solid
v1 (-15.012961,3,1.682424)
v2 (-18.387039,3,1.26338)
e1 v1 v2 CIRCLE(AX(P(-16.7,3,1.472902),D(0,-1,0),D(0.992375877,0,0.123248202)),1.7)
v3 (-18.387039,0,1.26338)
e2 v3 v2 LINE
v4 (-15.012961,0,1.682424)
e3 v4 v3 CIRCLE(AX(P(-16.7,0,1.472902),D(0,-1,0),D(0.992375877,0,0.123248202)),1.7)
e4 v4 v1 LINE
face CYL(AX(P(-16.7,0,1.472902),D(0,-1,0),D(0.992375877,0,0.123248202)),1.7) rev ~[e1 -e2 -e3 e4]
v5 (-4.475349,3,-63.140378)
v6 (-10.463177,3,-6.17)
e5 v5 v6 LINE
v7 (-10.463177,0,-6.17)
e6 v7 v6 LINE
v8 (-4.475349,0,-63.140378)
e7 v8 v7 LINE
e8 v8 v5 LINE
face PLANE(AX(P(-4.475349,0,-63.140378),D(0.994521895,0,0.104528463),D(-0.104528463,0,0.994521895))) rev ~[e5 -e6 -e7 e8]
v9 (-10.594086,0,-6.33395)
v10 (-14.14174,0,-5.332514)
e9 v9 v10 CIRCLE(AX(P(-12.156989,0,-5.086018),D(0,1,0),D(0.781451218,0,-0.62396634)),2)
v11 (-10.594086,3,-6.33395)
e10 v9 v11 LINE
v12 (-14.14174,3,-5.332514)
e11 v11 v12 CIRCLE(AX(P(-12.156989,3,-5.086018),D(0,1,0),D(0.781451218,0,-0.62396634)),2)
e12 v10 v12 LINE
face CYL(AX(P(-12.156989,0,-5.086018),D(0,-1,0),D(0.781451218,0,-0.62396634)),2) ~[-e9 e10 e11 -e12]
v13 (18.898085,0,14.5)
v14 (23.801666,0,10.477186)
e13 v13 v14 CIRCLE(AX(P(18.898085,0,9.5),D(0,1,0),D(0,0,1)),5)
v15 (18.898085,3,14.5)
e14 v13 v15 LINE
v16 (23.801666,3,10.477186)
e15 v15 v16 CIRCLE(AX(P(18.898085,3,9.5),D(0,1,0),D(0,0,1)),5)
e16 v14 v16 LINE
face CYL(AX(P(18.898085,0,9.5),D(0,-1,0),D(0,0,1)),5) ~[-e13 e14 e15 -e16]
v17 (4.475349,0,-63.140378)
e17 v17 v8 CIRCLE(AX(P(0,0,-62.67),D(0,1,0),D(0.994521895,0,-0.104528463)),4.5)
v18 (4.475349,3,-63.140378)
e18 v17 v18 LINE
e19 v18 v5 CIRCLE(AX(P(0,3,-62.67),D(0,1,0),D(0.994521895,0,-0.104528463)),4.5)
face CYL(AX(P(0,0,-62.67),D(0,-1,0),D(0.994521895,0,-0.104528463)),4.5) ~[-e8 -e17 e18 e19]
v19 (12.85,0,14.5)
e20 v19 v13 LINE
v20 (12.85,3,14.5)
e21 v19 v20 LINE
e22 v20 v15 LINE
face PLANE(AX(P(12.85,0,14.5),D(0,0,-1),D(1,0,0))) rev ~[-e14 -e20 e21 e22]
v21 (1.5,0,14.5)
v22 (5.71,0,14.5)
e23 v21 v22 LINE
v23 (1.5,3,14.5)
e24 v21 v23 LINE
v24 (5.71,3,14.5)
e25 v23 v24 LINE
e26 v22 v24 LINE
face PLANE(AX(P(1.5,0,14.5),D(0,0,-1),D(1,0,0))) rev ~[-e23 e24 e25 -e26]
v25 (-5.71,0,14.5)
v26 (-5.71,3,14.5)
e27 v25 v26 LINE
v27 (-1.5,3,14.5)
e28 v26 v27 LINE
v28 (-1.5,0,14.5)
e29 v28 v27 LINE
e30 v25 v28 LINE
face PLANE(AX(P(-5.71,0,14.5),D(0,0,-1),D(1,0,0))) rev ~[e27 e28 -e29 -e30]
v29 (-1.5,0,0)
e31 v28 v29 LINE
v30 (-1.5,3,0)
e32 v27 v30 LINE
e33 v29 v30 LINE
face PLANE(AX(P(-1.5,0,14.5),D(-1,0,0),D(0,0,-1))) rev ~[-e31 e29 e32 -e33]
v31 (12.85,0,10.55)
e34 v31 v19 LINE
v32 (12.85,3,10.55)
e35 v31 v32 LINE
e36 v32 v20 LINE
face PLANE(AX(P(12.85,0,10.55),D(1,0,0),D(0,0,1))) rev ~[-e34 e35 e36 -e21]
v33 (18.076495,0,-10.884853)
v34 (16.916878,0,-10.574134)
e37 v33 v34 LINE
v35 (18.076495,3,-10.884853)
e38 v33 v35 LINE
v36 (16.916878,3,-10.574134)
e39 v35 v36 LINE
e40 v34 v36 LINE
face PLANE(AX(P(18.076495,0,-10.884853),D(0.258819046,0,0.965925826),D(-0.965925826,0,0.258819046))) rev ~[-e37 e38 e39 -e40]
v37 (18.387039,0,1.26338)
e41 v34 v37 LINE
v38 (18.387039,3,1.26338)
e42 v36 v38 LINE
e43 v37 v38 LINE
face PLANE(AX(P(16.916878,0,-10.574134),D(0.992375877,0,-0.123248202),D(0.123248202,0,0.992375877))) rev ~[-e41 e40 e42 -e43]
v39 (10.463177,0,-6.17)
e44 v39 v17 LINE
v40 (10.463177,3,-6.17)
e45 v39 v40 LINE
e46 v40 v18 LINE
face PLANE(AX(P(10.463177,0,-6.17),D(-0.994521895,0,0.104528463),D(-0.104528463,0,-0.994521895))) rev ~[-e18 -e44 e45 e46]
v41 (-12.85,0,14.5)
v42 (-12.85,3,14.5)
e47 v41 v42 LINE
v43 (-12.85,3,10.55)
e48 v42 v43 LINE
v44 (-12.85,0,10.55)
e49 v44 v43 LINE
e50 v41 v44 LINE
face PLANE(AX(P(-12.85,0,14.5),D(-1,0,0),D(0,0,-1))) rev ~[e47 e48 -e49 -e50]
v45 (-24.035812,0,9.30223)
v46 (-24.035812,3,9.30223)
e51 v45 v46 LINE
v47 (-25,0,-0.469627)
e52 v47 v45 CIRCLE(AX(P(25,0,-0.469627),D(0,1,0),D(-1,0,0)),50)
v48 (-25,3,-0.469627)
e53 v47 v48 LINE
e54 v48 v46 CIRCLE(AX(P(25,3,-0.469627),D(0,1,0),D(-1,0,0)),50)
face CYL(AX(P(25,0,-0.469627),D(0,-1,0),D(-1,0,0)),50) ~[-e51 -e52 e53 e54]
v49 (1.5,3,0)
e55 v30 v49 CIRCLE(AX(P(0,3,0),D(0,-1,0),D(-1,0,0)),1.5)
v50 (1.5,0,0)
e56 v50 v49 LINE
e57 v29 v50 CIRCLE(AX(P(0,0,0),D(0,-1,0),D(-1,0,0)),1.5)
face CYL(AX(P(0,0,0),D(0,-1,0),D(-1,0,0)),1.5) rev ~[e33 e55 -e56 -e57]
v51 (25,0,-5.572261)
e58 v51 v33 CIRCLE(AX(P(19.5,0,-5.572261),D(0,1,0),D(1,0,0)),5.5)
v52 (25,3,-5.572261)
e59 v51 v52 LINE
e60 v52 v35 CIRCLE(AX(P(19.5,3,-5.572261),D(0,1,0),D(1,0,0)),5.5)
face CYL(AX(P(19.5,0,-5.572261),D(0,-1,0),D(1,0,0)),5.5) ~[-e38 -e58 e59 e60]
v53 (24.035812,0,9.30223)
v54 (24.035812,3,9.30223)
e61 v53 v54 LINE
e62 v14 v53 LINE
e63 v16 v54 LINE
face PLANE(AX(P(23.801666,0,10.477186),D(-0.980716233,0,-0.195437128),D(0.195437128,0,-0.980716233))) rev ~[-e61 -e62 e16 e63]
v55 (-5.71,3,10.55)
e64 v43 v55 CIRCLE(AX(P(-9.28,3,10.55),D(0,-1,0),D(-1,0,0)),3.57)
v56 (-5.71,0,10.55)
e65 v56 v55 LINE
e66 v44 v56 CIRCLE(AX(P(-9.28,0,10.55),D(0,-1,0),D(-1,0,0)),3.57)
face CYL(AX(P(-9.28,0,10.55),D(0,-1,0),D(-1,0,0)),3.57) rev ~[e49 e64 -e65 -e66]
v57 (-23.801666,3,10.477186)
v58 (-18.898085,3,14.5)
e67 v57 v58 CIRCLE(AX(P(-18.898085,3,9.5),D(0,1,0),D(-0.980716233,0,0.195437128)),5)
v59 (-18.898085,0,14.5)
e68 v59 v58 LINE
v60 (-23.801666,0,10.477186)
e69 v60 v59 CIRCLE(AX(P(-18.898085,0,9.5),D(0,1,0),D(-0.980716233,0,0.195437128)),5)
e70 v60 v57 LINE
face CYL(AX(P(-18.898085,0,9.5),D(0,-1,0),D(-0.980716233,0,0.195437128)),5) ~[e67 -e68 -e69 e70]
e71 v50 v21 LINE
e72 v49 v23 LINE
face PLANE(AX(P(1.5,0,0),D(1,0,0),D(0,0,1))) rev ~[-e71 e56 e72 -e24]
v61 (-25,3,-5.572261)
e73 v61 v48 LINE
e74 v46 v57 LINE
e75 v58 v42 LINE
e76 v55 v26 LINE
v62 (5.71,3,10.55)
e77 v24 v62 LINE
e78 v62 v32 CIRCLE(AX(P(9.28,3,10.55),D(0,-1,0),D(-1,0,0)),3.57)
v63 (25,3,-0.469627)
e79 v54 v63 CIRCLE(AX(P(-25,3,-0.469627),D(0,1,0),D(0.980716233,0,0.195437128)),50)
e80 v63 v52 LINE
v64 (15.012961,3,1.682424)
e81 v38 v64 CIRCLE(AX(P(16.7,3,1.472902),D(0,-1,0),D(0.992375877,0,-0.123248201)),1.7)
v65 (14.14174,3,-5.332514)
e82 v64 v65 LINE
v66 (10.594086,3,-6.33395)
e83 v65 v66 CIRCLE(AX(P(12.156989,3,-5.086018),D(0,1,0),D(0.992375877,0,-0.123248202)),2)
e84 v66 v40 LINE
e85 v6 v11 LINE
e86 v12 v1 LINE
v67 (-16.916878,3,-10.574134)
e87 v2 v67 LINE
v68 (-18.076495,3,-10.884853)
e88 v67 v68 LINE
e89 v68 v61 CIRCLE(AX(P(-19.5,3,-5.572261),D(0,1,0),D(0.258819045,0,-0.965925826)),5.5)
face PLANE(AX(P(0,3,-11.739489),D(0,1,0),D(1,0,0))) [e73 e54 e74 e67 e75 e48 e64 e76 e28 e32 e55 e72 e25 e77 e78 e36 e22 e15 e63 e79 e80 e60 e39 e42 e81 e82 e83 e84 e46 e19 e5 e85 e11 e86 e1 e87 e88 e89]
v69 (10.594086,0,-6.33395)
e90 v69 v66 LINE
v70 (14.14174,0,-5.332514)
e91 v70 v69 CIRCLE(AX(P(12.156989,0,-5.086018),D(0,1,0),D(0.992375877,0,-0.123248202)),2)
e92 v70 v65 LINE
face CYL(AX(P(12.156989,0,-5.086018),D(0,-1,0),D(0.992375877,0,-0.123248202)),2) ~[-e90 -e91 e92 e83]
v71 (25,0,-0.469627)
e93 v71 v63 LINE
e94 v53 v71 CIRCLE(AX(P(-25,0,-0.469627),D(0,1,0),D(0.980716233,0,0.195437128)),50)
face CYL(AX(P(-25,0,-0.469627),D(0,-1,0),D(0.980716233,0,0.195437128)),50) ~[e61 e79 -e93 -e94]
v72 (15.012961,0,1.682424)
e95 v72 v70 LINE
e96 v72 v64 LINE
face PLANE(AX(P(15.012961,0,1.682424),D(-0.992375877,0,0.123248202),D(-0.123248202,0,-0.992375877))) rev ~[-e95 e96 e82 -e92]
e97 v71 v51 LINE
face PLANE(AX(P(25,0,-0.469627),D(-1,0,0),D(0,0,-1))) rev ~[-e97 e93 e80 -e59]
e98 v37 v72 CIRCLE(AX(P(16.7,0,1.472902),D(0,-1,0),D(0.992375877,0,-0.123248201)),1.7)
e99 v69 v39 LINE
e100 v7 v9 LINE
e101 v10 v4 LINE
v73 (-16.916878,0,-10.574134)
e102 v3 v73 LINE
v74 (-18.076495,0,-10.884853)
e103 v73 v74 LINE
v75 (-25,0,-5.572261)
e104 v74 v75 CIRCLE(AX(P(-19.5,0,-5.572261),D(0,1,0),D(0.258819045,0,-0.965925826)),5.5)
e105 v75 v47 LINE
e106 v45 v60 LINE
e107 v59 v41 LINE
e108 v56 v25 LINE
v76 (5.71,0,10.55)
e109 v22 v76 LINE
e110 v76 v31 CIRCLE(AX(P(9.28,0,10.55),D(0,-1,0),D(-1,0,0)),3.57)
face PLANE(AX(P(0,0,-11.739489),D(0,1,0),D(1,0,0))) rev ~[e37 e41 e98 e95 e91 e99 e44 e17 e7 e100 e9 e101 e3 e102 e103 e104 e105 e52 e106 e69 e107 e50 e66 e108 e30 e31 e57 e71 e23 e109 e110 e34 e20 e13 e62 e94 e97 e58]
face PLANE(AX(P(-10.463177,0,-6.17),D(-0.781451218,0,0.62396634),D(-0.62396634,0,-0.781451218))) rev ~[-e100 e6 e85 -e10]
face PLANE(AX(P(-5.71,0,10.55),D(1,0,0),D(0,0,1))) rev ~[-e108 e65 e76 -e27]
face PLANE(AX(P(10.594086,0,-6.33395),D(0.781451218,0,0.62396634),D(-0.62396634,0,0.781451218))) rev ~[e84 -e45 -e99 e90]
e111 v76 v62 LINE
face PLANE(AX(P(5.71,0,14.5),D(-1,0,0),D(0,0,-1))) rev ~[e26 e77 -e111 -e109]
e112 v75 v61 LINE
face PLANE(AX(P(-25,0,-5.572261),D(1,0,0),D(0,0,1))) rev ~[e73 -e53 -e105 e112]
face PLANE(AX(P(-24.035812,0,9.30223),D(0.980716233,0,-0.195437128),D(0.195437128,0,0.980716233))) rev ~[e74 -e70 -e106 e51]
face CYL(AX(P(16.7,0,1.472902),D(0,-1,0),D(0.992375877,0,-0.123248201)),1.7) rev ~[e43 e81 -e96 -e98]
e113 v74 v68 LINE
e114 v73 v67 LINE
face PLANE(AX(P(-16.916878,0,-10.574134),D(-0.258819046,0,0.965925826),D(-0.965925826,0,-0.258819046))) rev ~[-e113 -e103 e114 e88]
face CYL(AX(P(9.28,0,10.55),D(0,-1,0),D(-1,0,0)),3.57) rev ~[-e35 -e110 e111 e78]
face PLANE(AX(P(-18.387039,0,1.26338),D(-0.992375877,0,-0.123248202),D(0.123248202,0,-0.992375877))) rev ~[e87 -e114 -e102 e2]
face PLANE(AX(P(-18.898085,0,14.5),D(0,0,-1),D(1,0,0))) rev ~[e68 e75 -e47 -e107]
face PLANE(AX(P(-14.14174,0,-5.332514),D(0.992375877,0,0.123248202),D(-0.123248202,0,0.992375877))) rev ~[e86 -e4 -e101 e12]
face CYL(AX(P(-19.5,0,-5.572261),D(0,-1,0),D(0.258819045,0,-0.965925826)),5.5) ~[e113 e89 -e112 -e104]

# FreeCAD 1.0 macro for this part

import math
import FreeCAD as App
import Part
import Sketcher
Q = App.Units.Quantity

doc = App.newDocument("Part")
body = doc.addObject("PartDesign::Body", "Body")

sketch1 = body.newObject("Sketcher::SketchObject", "Sketch")
sketch1.AttachmentSupport = (doc.getObject("XZ_Plane"), [""])
sketch1.MapMode = "FlatFace"
sketch1.addGeometry(Part.LineSegment(App.Vector(10.46, -6.17, 0), App.Vector(4.48, -63.14, 0)), False)
sketch1.addGeometry(Part.ArcOfCircle(Part.Circle(App.Vector(0, -62.67, 0), App.Vector(0, 0, 1), 4.5), math.radians(-174), math.radians(-6)), False)
sketch1.addGeometry(Part.LineSegment(App.Vector(-4.48, -63.14, 0), App.Vector(-10.46, -6.17, 0)), False)
sketch1.addGeometry(Part.LineSegment(App.Vector(-10.46, -6.17, 0), App.Vector(-10.59, -6.33, 0)), False)
sketch1.addGeometry(Part.ArcOfCircle(Part.Circle(App.Vector(-12.16, -5.09, 0), App.Vector(0, 0, 1), 2), math.radians(-173), math.radians(-39)), False)
sketch1.addGeometry(Part.LineSegment(App.Vector(-14.14, -5.33, 0), App.Vector(-15.01, 1.68, 0)), False)
sketch1.addGeometry(Part.ArcOfCircle(Part.Circle(App.Vector(-16.7, 1.47, 0), App.Vector(0, 0, 1), 1.7), math.radians(7), math.radians(187)), False)
sketch1.addGeometry(Part.LineSegment(App.Vector(-18.39, 1.26, 0), App.Vector(-16.92, -10.57, 0)), False)
sketch1.addGeometry(Part.LineSegment(App.Vector(-16.92, -10.57, 0), App.Vector(-18.08, -10.88, 0)), False)
sketch1.addGeometry(Part.ArcOfCircle(Part.Circle(App.Vector(-19.5, -5.57, 0), App.Vector(0, 0, 1), 5.5), math.radians(180), math.radians(285)), False)
sketch1.addGeometry(Part.LineSegment(App.Vector(-25, -5.57, 0), App.Vector(-25, -0.47, 0)), False)
sketch1.addGeometry(Part.ArcOfCircle(Part.Circle(App.Vector(25, -0.47, 0), App.Vector(0, 0, 1), 50), math.radians(168.73), math.radians(180)), False)
sketch1.addGeometry(Part.LineSegment(App.Vector(-24.04, 9.3, 0), App.Vector(-23.8, 10.48, 0)), False)
sketch1.addGeometry(Part.ArcOfCircle(Part.Circle(App.Vector(-18.9, 9.5, 0), App.Vector(0, 0, 1), 5), math.radians(90), math.radians(169)), False)
sketch1.addGeometry(Part.LineSegment(App.Vector(-18.9, 14.5, 0), App.Vector(-12.85, 14.5, 0)), False)
sketch1.addGeometry(Part.LineSegment(App.Vector(-12.85, 14.5, 0), App.Vector(-12.85, 10.55, 0)), False)
sketch1.addGeometry(Part.ArcOfCircle(Part.Circle(App.Vector(-9.28, 10.55, 0), App.Vector(0, 0, 1), 3.57), math.radians(180), math.radians(360)), False)
sketch1.addGeometry(Part.LineSegment(App.Vector(-5.71, 10.55, 0), App.Vector(-5.71, 14.5, 0)), False)
sketch1.addGeometry(Part.LineSegment(App.Vector(-5.71, 14.5, 0), App.Vector(-1.5, 14.5, 0)), False)
sketch1.addGeometry(Part.LineSegment(App.Vector(-1.5, 14.5, 0), App.Vector(-1.5, 0, 0)), False)
sketch1.addGeometry(Part.ArcOfCircle(Part.Circle(App.Vector(0, 0, 0), App.Vector(0, 0, 1), 1.5), math.radians(180), math.radians(360)), False)
sketch1.addGeometry(Part.LineSegment(App.Vector(1.5, 0, 0), App.Vector(1.5, 14.5, 0)), False)
sketch1.addGeometry(Part.LineSegment(App.Vector(1.5, 14.5, 0), App.Vector(5.71, 14.5, 0)), False)
sketch1.addGeometry(Part.LineSegment(App.Vector(5.71, 14.5, 0), App.Vector(5.71, 10.55, 0)), False)
sketch1.addGeometry(Part.ArcOfCircle(Part.Circle(App.Vector(9.28, 10.55, 0), App.Vector(0, 0, 1), 3.57), math.radians(180), math.radians(360)), False)
sketch1.addGeometry(Part.LineSegment(App.Vector(12.85, 10.55, 0), App.Vector(12.85, 14.5, 0)), False)
sketch1.addGeometry(Part.LineSegment(App.Vector(12.85, 14.5, 0), App.Vector(18.9, 14.5, 0)), False)
sketch1.addGeometry(Part.ArcOfCircle(Part.Circle(App.Vector(18.9, 9.5, 0), App.Vector(0, 0, 1), 5), math.radians(11), math.radians(90)), False)
sketch1.addGeometry(Part.LineSegment(App.Vector(23.8, 10.48, 0), App.Vector(24.04, 9.3, 0)), False)
sketch1.addGeometry(Part.ArcOfCircle(Part.Circle(App.Vector(-25, -0.47, 0), App.Vector(0, 0, 1), 50), math.radians(0), math.radians(11.27)), False)
sketch1.addGeometry(Part.LineSegment(App.Vector(25, -0.47, 0), App.Vector(25, -5.57, 0)), False)
sketch1.addGeometry(Part.ArcOfCircle(Part.Circle(App.Vector(19.5, -5.57, 0), App.Vector(0, 0, 1), 5.5), math.radians(-105), math.radians(0)), False)
sketch1.addGeometry(Part.LineSegment(App.Vector(18.08, -10.88, 0), App.Vector(16.92, -10.57, 0)), False)
sketch1.addGeometry(Part.LineSegment(App.Vector(16.92, -10.57, 0), App.Vector(18.39, 1.26, 0)), False)
sketch1.addGeometry(Part.ArcOfCircle(Part.Circle(App.Vector(16.7, 1.47, 0), App.Vector(0, 0, 1), 1.7), math.radians(-7), math.radians(173)), False)
sketch1.addGeometry(Part.LineSegment(App.Vector(15.01, 1.68, 0), App.Vector(14.14, -5.33, 0)), False)
sketch1.addGeometry(Part.ArcOfCircle(Part.Circle(App.Vector(12.16, -5.09, 0), App.Vector(0, 0, 1), 2), math.radians(-141), math.radians(-7)), False)
sketch1.addGeometry(Part.LineSegment(App.Vector(10.59, -6.33, 0), App.Vector(10.46, -6.17, 0)), False)
sketch1.addConstraint(Sketcher.Constraint("Tangent", 0, 2, 1, 2))
sketch1.addConstraint(Sketcher.Constraint("Tangent", 1, 1, 2, 1))
sketch1.addConstraint(Sketcher.Constraint("Coincident", 2, 2, 3, 1))
sketch1.addConstraint(Sketcher.Constraint("Tangent", 3, 2, 4, 2))
sketch1.addConstraint(Sketcher.Constraint("Tangent", 4, 1, 5, 1))
sketch1.addConstraint(Sketcher.Constraint("Tangent", 5, 2, 6, 1))
sketch1.addConstraint(Sketcher.Constraint("Tangent", 6, 2, 7, 1))
sketch1.addConstraint(Sketcher.Constraint("Coincident", 7, 2, 8, 1))
sketch1.addConstraint(Sketcher.Constraint("Tangent", 8, 2, 9, 2))
sketch1.addConstraint(Sketcher.Constraint("Tangent", 9, 1, 10, 1))
sketch1.addConstraint(Sketcher.Constraint("Tangent", 10, 2, 11, 2))
sketch1.addConstraint(Sketcher.Constraint("Tangent", 11, 1, 12, 1))
sketch1.addConstraint(Sketcher.Constraint("Tangent", 12, 2, 13, 2))
sketch1.addConstraint(Sketcher.Constraint("Tangent", 13, 1, 14, 1))
sketch1.addConstraint(Sketcher.Constraint("Coincident", 14, 2, 15, 1))
sketch1.addConstraint(Sketcher.Constraint("Tangent", 15, 2, 16, 1))
sketch1.addConstraint(Sketcher.Constraint("Tangent", 16, 2, 17, 1))
sketch1.addConstraint(Sketcher.Constraint("Coincident", 17, 2, 18, 1))
sketch1.addConstraint(Sketcher.Constraint("Coincident", 18, 2, 19, 1))
sketch1.addConstraint(Sketcher.Constraint("Tangent", 19, 2, 20, 1))
sketch1.addConstraint(Sketcher.Constraint("Tangent", 20, 2, 21, 1))
sketch1.addConstraint(Sketcher.Constraint("Coincident", 21, 2, 22, 1))
sketch1.addConstraint(Sketcher.Constraint("Coincident", 22, 2, 23, 1))
sketch1.addConstraint(Sketcher.Constraint("Tangent", 23, 2, 24, 1))
sketch1.addConstraint(Sketcher.Constraint("Tangent", 24, 2, 25, 1))
sketch1.addConstraint(Sketcher.Constraint("Coincident", 25, 2, 26, 1))
sketch1.addConstraint(Sketcher.Constraint("Tangent", 26, 2, 27, 2))
sketch1.addConstraint(Sketcher.Constraint("Tangent", 27, 1, 28, 1))
sketch1.addConstraint(Sketcher.Constraint("Tangent", 28, 2, 29, 2))
sketch1.addConstraint(Sketcher.Constraint("Tangent", 29, 1, 30, 1))
sketch1.addConstraint(Sketcher.Constraint("Tangent", 30, 2, 31, 2))
sketch1.addConstraint(Sketcher.Constraint("Tangent", 31, 1, 32, 1))
sketch1.addConstraint(Sketcher.Constraint("Coincident", 32, 2, 33, 1))
sketch1.addConstraint(Sketcher.Constraint("Tangent", 33, 2, 34, 1))
sketch1.addConstraint(Sketcher.Constraint("Tangent", 34, 2, 35, 1))
sketch1.addConstraint(Sketcher.Constraint("Tangent", 35, 2, 36, 2))
sketch1.addConstraint(Sketcher.Constraint("Tangent", 36, 1, 37, 1))
sketch1.addConstraint(Sketcher.Constraint("Coincident", 37, 2, 0, 1))
sketch1.addConstraint(Sketcher.Constraint("Vertical", 10))
sketch1.addConstraint(Sketcher.Constraint("Horizontal", 14))
sketch1.addConstraint(Sketcher.Constraint("Vertical", 15))
sketch1.addConstraint(Sketcher.Constraint("Vertical", 17))
sketch1.addConstraint(Sketcher.Constraint("Horizontal", 18))
sketch1.addConstraint(Sketcher.Constraint("Vertical", 19))
sketch1.addConstraint(Sketcher.Constraint("Vertical", 21))
sketch1.addConstraint(Sketcher.Constraint("Horizontal", 22))
sketch1.addConstraint(Sketcher.Constraint("Vertical", 23))
sketch1.addConstraint(Sketcher.Constraint("Vertical", 25))
sketch1.addConstraint(Sketcher.Constraint("Horizontal", 26))
sketch1.addConstraint(Sketcher.Constraint("Vertical", 30))
sketch1.addConstraint(Sketcher.Constraint("Coincident", 20, 3, -1, 1))
sketch1.addConstraint(Sketcher.Constraint("Coincident", 10, 2, 29, 3))
sketch1.addConstraint(Sketcher.Constraint("Equal", 16, 24))
sketch1.addConstraint(Sketcher.Constraint("Equal", 13, 27))
sketch1.addConstraint(Sketcher.Constraint("Equal", 11, 29))
sketch1.addConstraint(Sketcher.Constraint("Equal", 9, 31))
sketch1.addConstraint(Sketcher.Constraint("Equal", 6, 34))
sketch1.addConstraint(Sketcher.Constraint("Equal", 4, 36))
sketch1.addConstraint(Sketcher.Constraint("Symmetric", 16, 3, 24, 3, -2))
sketch1.addConstraint(Sketcher.Constraint("Symmetric", 13, 3, 27, 3, -2))
sketch1.addConstraint(Sketcher.Constraint("Symmetric", 9, 3, 31, 3, -2))
sketch1.addConstraint(Sketcher.Constraint("Symmetric", 6, 3, 34, 3, -2))
sketch1.addConstraint(Sketcher.Constraint("Symmetric", 4, 3, 36, 3, -2))
sketch1.addConstraint(Sketcher.Constraint("Symmetric", 0, 2, 1, 1, -2))
sketch1.addConstraint(Sketcher.Constraint("Symmetric", 7, 2, 32, 2, -2))
sketch1.addConstraint(Sketcher.Constraint("Parallel", 5, 7))
sketch1.addConstraint(Sketcher.Constraint("Horizontal", 14, 2, 17, 2))
sketch1.addConstraint(Sketcher.Constraint("Horizontal", 18, 2, 21, 2))
sketch1.addConstraint(Sketcher.Constraint("Horizontal", 3, 2, 36, 1))
sketch1.addConstraint(Sketcher.Constraint("Radius", 4, Q("2 mm")))
sketch1.addConstraint(Sketcher.Constraint("Radius", 11, Q("50 mm")))
sketch1.addConstraint(Sketcher.Constraint("Radius", 13, Q("5 mm")))
sketch1.addConstraint(Sketcher.Constraint("Radius", 1, Q("4.5 mm")))
sketch1.addConstraint(Sketcher.Constraint("Radius", 6, Q("1.7 mm")))
sketch1.addConstraint(Sketcher.Constraint("Radius", 9, Q("5.5 mm")))
sketch1.addConstraint(Sketcher.Constraint("Radius", 20, Q("1.5 mm")))
sketch1.addConstraint(Sketcher.Constraint("Angle", 0, Q("-96 deg")))
sketch1.addConstraint(Sketcher.Constraint("Angle", 8, Q("-165 deg")))
sketch1.addConstraint(Sketcher.Constraint("Radius", 16, Q("3.57 mm")))
sketch1.addConstraint(Sketcher.Constraint("DistanceY", 19, 2, 19, 1, Q("14.5 mm")))
sketch1.addConstraint(Sketcher.Constraint("DistanceX", 18, 1, 18, 2, Q("4.21 mm")))
sketch1.addConstraint(Sketcher.Constraint("DistanceY", 15, 2, 15, 1, Q("3.95 mm")))
sketch1.addConstraint(Sketcher.Constraint("DistanceX", 6, 3, -1, 1, Q("16.7 mm")))
sketch1.addConstraint(Sketcher.Constraint("DistanceY", 1, 3, -1, 1, Q("62.67 mm")))
sketch1.addConstraint(Sketcher.Constraint("DistanceY", 2, 2, -1, 1, Q("6.17 mm")))
sketch1.addConstraint(Sketcher.Constraint("DistanceY", -1, 1, 6, 3, Q("1.472902 mm")))
sketch1.addConstraint(Sketcher.Constraint("DistanceX", 6, 2, 4, 1, Q("4.245299 mm")))
sketch1.addConstraint(Sketcher.Constraint("DistanceX", 7, 2, 2, 2, Q("6.453701 mm")))
sketch1.addConstraint(Sketcher.Constraint("Distance", 5, Q("7.068831 mm")))
sketch1.addConstraint(Sketcher.Constraint("Distance", 12, Q("1.198059 mm")))
sketch1.addConstraint(Sketcher.Constraint("DistanceX", 14, 1, 14, 2, Q("6.048085 mm")))
pad1 = body.newObject("PartDesign::Pad", "Pad")
pad1.Profile = sketch1
pad1.Length = 3
pad1.Reversed = True

doc.recompute()
